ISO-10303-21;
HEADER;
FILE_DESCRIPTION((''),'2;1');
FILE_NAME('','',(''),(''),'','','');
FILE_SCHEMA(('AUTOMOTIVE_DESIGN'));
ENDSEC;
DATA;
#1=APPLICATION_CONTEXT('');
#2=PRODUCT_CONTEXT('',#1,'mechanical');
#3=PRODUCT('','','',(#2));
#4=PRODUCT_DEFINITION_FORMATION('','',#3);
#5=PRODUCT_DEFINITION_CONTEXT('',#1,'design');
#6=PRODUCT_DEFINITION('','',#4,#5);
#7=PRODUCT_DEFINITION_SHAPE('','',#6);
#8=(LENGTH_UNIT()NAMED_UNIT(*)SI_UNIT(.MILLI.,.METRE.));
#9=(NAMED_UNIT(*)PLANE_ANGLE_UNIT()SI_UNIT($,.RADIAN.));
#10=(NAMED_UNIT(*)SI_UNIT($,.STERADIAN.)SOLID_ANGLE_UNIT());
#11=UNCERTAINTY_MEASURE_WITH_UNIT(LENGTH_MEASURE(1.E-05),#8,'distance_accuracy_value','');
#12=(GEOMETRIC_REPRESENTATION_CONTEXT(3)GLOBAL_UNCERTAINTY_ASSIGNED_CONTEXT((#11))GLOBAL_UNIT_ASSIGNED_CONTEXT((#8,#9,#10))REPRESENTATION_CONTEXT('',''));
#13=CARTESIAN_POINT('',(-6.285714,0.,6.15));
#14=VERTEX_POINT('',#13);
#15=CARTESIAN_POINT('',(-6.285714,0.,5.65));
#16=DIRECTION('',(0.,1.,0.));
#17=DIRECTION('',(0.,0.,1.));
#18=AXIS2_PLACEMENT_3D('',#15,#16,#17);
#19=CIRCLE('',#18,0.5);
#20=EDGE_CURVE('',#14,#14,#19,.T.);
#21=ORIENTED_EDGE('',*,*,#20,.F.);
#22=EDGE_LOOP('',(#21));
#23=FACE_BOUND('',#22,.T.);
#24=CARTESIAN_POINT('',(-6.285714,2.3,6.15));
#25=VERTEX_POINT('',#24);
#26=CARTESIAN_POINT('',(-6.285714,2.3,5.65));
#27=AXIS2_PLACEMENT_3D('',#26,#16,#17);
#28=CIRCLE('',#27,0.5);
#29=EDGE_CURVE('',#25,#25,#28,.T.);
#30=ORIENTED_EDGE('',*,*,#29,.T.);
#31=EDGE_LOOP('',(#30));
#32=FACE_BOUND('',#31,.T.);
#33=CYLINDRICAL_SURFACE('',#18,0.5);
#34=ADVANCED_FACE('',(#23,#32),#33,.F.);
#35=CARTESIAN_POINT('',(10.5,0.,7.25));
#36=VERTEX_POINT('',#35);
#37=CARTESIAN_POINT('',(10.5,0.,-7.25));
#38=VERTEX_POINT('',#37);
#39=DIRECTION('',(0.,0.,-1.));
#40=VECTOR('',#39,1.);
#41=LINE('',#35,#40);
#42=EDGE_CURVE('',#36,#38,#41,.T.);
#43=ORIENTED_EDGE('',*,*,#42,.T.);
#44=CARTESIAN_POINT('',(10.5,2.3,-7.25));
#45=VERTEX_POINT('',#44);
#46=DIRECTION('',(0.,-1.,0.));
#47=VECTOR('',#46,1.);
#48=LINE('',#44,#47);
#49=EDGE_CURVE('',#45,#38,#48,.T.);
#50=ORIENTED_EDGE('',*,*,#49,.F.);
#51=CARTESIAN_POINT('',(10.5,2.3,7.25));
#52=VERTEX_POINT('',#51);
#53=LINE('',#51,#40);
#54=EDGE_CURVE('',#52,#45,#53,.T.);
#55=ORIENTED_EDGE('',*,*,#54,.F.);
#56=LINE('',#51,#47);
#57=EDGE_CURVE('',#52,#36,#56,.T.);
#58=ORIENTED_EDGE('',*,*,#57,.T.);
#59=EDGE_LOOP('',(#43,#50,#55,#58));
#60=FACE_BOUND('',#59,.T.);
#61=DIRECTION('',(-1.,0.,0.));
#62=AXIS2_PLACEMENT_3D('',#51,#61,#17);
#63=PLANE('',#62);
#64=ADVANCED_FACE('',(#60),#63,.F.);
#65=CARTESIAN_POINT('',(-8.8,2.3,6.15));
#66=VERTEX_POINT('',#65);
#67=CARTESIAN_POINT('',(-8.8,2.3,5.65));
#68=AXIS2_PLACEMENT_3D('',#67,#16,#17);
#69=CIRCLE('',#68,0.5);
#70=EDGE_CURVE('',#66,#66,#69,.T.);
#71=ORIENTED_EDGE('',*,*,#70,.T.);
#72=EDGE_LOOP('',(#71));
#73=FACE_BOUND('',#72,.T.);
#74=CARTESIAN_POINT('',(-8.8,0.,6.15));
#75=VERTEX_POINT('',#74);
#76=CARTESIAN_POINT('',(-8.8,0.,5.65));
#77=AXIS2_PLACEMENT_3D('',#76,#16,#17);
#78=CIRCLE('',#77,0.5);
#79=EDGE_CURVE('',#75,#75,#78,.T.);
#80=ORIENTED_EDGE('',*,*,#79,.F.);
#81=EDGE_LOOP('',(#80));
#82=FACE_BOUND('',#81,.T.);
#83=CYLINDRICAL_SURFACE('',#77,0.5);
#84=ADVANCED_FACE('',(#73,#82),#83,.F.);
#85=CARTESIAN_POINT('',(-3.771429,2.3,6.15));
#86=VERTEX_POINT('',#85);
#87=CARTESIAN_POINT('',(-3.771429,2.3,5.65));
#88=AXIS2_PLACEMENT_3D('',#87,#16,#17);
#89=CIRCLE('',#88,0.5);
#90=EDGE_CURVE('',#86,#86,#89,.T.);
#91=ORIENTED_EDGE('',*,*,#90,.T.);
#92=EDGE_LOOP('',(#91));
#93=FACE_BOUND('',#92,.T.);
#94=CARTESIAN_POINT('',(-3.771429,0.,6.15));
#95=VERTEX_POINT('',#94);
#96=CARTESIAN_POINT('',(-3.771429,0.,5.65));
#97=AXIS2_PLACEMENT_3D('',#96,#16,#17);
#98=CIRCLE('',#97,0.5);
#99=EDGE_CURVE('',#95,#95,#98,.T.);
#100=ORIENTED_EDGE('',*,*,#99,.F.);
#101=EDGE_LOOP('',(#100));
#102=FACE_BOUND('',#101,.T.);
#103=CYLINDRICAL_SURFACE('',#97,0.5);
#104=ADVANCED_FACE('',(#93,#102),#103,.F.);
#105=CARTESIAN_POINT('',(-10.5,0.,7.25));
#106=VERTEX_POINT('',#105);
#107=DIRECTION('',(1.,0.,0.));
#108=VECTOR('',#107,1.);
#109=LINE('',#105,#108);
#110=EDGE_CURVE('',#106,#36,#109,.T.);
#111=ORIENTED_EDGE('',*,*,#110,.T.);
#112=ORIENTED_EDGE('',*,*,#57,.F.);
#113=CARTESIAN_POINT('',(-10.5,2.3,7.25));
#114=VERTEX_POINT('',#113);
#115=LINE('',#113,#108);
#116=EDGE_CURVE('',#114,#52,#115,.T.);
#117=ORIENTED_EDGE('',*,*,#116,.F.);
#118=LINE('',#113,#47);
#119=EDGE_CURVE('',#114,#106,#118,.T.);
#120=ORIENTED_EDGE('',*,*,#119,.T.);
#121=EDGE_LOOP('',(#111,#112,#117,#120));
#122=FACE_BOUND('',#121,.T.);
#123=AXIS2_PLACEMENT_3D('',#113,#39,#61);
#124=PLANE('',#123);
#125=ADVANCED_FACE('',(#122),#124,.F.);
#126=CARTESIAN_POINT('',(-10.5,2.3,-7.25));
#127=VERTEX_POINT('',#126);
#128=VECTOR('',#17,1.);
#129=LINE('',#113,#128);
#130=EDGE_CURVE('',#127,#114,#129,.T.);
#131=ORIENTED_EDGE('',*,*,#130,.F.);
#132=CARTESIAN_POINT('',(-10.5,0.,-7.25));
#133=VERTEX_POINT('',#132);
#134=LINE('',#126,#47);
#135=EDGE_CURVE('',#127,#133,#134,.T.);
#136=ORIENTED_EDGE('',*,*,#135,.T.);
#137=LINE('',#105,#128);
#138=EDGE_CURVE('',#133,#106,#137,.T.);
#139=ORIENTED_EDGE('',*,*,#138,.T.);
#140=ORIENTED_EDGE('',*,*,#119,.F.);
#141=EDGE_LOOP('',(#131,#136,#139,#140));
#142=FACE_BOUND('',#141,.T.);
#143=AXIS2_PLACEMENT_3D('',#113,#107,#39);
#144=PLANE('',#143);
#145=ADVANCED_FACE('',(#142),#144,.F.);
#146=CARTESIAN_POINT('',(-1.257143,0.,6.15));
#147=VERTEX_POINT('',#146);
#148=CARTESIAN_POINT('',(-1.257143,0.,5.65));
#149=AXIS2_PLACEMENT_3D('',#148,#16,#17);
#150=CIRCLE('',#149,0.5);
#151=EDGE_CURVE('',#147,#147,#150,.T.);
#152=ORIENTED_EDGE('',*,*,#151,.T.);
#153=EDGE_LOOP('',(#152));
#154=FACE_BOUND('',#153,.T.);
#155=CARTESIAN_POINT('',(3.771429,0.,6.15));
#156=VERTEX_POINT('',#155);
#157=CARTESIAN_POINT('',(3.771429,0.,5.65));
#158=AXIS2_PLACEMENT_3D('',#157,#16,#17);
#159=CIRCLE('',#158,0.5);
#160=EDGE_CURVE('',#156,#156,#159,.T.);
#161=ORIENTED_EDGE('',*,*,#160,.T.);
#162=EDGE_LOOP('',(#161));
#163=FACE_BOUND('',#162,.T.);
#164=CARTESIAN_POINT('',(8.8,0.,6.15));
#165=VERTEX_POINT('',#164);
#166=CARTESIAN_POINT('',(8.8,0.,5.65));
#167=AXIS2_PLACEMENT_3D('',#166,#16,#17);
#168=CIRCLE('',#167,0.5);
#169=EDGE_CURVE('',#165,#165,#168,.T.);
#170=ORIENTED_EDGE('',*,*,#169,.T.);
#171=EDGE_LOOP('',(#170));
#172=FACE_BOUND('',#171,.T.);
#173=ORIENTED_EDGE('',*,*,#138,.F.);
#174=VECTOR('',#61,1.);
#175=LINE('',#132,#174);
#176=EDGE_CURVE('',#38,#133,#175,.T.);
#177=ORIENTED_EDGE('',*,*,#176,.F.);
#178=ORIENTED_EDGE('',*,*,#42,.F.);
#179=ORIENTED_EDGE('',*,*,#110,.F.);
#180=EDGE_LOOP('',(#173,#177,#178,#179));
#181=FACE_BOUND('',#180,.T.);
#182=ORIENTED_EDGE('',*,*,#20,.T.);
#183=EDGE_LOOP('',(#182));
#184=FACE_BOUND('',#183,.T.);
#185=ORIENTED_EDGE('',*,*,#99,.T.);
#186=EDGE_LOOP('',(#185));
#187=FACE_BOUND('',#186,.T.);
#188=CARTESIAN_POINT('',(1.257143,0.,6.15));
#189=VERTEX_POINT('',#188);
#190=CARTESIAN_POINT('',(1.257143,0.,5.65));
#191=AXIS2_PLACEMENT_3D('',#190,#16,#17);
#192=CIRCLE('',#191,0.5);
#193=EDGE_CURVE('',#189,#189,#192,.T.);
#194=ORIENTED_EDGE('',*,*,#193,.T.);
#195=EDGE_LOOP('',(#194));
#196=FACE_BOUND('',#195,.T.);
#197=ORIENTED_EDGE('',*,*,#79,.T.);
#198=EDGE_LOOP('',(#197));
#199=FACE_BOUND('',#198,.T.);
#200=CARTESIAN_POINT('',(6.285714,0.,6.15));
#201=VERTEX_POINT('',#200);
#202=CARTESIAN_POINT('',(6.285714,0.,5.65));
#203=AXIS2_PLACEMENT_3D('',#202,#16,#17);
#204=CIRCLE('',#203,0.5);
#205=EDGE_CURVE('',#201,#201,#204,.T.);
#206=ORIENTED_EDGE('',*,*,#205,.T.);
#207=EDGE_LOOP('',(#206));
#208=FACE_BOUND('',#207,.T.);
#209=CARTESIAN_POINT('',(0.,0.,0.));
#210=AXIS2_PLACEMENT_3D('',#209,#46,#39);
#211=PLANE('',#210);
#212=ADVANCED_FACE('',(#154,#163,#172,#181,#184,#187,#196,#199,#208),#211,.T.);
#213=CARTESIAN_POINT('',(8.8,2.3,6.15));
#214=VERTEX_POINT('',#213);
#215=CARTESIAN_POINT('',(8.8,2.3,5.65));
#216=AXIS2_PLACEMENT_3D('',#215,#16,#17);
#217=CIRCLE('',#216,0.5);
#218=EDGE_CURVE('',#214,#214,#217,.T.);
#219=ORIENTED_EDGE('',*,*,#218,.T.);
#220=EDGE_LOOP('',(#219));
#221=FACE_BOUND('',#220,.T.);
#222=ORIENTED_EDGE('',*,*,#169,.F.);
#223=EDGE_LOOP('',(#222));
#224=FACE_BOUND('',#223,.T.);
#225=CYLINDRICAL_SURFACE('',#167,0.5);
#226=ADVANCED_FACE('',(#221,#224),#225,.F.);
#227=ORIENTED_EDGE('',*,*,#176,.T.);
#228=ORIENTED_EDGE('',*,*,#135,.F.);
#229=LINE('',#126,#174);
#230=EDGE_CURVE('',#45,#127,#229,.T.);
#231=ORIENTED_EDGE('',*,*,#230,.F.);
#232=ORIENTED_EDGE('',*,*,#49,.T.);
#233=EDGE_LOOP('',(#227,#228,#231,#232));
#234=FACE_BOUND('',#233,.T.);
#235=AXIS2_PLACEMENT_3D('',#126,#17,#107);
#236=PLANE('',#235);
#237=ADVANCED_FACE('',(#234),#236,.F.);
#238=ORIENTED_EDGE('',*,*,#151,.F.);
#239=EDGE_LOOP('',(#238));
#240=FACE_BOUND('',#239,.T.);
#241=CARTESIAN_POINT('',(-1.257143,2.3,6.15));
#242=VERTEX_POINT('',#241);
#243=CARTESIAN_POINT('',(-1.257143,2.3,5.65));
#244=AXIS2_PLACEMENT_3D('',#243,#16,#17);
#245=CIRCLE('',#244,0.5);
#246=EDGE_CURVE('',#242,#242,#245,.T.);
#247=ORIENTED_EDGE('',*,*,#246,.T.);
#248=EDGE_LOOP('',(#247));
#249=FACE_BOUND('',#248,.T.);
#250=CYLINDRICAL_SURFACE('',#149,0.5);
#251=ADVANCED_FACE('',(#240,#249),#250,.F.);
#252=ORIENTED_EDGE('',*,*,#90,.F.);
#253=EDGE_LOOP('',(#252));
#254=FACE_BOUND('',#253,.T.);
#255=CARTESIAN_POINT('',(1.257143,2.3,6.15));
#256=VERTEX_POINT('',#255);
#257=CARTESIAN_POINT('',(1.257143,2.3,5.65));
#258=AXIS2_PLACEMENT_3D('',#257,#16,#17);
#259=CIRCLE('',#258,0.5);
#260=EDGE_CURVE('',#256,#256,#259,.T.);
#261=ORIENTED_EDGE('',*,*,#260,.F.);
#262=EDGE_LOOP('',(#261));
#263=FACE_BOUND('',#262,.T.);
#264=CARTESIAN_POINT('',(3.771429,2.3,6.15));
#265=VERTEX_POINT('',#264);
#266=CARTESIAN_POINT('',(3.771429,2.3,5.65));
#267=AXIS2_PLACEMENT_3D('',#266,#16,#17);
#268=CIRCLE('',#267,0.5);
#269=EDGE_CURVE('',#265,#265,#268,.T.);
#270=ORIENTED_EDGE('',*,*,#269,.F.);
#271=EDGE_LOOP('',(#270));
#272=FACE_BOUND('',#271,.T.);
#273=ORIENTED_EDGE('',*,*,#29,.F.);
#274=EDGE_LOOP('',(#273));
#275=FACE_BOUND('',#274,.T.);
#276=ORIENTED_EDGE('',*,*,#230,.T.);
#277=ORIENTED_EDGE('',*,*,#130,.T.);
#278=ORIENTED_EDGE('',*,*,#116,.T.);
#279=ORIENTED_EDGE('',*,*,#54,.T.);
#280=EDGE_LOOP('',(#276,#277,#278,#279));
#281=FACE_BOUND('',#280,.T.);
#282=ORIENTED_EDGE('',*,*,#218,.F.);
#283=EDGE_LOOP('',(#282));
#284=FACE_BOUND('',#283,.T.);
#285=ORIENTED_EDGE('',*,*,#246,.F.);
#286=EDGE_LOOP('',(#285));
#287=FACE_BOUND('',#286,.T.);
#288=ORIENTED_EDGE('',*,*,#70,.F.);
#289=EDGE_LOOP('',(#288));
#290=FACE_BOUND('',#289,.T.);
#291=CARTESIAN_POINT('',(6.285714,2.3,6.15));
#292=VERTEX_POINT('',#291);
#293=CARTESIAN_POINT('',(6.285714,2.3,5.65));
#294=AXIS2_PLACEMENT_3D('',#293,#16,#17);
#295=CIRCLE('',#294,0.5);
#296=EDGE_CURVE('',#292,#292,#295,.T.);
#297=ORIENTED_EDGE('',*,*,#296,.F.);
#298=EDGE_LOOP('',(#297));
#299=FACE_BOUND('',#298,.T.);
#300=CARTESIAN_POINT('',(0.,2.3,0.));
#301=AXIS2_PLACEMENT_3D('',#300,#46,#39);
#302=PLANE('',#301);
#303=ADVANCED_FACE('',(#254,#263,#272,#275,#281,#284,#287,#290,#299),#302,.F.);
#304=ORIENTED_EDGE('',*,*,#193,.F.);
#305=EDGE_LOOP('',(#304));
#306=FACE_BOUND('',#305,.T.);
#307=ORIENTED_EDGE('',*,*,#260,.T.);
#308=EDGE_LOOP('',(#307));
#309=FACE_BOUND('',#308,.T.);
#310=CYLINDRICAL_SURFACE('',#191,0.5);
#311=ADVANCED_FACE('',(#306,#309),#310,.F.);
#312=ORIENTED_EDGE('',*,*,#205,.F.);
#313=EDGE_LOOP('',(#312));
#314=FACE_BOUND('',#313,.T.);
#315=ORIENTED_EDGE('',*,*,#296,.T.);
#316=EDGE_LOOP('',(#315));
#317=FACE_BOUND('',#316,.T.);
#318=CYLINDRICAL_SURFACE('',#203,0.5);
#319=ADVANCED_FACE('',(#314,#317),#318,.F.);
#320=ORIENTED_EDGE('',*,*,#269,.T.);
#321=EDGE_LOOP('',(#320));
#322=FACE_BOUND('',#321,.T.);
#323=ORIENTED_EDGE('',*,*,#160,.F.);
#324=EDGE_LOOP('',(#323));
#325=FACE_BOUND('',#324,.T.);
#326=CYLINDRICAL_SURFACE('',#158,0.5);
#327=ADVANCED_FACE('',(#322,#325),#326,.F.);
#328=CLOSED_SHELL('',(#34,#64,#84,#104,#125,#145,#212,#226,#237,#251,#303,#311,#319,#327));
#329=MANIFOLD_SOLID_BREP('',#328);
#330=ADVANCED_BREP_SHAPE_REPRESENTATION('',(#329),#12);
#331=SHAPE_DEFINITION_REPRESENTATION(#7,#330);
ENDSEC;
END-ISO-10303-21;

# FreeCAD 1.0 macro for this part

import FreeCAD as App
import Part
import Sketcher

doc = App.newDocument("Part")
params = doc.addObject("Spreadsheet::Sheet", "Params")
for row, (alias, value) in enumerate([
    ("sketch1_width", "21 mm"),
    ("sketch1_height", "14.5 mm"),
    ("pad1_length", "2.3 mm"),
    ("sketch2_diameter", "1 mm"),
], start=1):
    params.set(f"A{row}", alias)
    params.set(f"B{row}", "=" + value)
    params.setAlias(f"B{row}", alias)

body = doc.addObject("PartDesign::Body", "Body")

# Sketch on XZ plane
sketch1 = body.newObject("Sketcher::SketchObject", "Sketch")
sketch1.AttachmentSupport = (doc.getObject("XZ_Plane"), [""])
sketch1.MapMode = "FlatFace"
sketch1.addGeometry([
    Part.LineSegment(App.Vector(-10, -7, 0), App.Vector(-10, 7, 0)),
    Part.LineSegment(App.Vector(-10, 7, 0), App.Vector(10, 7, 0)),
    Part.LineSegment(App.Vector(10, 7, 0), App.Vector(10, -7, 0)),
    Part.LineSegment(App.Vector(10, -7, 0), App.Vector(-10, -7, 0)),
], False)
sketch1.addConstraint([
    Sketcher.Constraint("Coincident", 0, 2, 1, 1),
    Sketcher.Constraint("Coincident", 1, 2, 2, 1),
    Sketcher.Constraint("Coincident", 2, 2, 3, 1),
    Sketcher.Constraint("Coincident", 3, 2, 0, 1),
    Sketcher.Constraint("Vertical", 0),
    Sketcher.Constraint("Horizontal", 1),
    Sketcher.Constraint("Vertical", 2),
    Sketcher.Constraint("Horizontal", 3),
    Sketcher.Constraint("Symmetric", 0, 2, 2, 2, -1, 1),
    Sketcher.Constraint("DistanceX", 1, 1, 1, 2, 21.0),
    Sketcher.Constraint("DistanceY", 0, 1, 0, 2, 14.5),
])
sketch1.setExpression("Constraints[9]", "Params.sketch1_width")
sketch1.setExpression("Constraints[10]", "Params.sketch1_height")
pad1 = body.newObject("PartDesign::Pad", "Pad")
pad1.Profile = sketch1
pad1.setExpression("Length", "Params.pad1_length")
pad1.Reversed = True

# Sketch on XZ plane
sketch2 = body.newObject("Sketcher::SketchObject", "Sketch001")
sketch2.AttachmentSupport = (doc.getObject("XZ_Plane"), [""])
sketch2.MapMode = "FlatFace"
sketch2.AttachmentOffset = App.Placement(App.Vector(0, 0, -2.3), App.Rotation())
sketch2.addGeometry([
    Part.Circle(App.Vector(-8.8, 5.7, 0), App.Vector(0, 0, 1), 0.5),  # 0
    Part.Circle(App.Vector(-6.3, 5.7, 0), App.Vector(0, 0, 1), 0.5),  # 1
    Part.Circle(App.Vector(-3.8, 5.7, 0), App.Vector(0, 0, 1), 0.5),  # 2
    Part.Circle(App.Vector(-1.3, 5.7, 0), App.Vector(0, 0, 1), 0.5),  # 3
    Part.Circle(App.Vector(1.3, 5.7, 0), App.Vector(0, 0, 1), 0.5),  # 4
    Part.Circle(App.Vector(3.8, 5.7, 0), App.Vector(0, 0, 1), 0.5),  # 5
    Part.Circle(App.Vector(6.3, 5.7, 0), App.Vector(0, 0, 1), 0.5),  # 6
    Part.Circle(App.Vector(8.8, 5.7, 0), App.Vector(0, 0, 1), 0.5),  # 7
], False)
sketch2.addConstraint([
    Sketcher.Constraint("Equal", 0, 1),
    Sketcher.Constraint("Equal", 1, 2),
    Sketcher.Constraint("Equal", 2, 3),
    Sketcher.Constraint("Equal", 3, 4),
    Sketcher.Constraint("Equal", 4, 5),
    Sketcher.Constraint("Equal", 5, 6),
    Sketcher.Constraint("Equal", 6, 7),
    Sketcher.Constraint("Symmetric", 3, 3, 4, 3, -2),
    Sketcher.Constraint("Symmetric", 2, 3, 5, 3, -2),
    Sketcher.Constraint("Symmetric", 1, 3, 6, 3, -2),
    Sketcher.Constraint("Symmetric", 0, 3, 7, 3, -2),
    Sketcher.Constraint("Horizontal", 0, 3, 1, 3),
    Sketcher.Constraint("Horizontal", 1, 3, 2, 3),
    Sketcher.Constraint("Horizontal", 2, 3, 3, 3),
    Sketcher.Constraint("Diameter", 0, 1.0),
    Sketcher.Constraint("DistanceX", 0, 3, -1, 1, 8.8),
    Sketcher.Constraint("DistanceY", -1, 1, 0, 3, 5.65),
    Sketcher.Constraint("DistanceX", 2, 3, -1, 1, 3.771429),
    Sketcher.Constraint("DistanceX", 1, 3, 3, 3, 5.028571),
    Sketcher.Constraint("DistanceX", 2, 3, 4, 3, 5.028571),
])
sketch2.setExpression("Constraints[14]", "Params.sketch2_diameter")
pocket1 = body.newObject("PartDesign::Pocket", "Pocket")
pocket1.Profile = sketch2
pocket1.Type = "ThroughAll"
pocket1.Reversed = True

doc.recompute()
